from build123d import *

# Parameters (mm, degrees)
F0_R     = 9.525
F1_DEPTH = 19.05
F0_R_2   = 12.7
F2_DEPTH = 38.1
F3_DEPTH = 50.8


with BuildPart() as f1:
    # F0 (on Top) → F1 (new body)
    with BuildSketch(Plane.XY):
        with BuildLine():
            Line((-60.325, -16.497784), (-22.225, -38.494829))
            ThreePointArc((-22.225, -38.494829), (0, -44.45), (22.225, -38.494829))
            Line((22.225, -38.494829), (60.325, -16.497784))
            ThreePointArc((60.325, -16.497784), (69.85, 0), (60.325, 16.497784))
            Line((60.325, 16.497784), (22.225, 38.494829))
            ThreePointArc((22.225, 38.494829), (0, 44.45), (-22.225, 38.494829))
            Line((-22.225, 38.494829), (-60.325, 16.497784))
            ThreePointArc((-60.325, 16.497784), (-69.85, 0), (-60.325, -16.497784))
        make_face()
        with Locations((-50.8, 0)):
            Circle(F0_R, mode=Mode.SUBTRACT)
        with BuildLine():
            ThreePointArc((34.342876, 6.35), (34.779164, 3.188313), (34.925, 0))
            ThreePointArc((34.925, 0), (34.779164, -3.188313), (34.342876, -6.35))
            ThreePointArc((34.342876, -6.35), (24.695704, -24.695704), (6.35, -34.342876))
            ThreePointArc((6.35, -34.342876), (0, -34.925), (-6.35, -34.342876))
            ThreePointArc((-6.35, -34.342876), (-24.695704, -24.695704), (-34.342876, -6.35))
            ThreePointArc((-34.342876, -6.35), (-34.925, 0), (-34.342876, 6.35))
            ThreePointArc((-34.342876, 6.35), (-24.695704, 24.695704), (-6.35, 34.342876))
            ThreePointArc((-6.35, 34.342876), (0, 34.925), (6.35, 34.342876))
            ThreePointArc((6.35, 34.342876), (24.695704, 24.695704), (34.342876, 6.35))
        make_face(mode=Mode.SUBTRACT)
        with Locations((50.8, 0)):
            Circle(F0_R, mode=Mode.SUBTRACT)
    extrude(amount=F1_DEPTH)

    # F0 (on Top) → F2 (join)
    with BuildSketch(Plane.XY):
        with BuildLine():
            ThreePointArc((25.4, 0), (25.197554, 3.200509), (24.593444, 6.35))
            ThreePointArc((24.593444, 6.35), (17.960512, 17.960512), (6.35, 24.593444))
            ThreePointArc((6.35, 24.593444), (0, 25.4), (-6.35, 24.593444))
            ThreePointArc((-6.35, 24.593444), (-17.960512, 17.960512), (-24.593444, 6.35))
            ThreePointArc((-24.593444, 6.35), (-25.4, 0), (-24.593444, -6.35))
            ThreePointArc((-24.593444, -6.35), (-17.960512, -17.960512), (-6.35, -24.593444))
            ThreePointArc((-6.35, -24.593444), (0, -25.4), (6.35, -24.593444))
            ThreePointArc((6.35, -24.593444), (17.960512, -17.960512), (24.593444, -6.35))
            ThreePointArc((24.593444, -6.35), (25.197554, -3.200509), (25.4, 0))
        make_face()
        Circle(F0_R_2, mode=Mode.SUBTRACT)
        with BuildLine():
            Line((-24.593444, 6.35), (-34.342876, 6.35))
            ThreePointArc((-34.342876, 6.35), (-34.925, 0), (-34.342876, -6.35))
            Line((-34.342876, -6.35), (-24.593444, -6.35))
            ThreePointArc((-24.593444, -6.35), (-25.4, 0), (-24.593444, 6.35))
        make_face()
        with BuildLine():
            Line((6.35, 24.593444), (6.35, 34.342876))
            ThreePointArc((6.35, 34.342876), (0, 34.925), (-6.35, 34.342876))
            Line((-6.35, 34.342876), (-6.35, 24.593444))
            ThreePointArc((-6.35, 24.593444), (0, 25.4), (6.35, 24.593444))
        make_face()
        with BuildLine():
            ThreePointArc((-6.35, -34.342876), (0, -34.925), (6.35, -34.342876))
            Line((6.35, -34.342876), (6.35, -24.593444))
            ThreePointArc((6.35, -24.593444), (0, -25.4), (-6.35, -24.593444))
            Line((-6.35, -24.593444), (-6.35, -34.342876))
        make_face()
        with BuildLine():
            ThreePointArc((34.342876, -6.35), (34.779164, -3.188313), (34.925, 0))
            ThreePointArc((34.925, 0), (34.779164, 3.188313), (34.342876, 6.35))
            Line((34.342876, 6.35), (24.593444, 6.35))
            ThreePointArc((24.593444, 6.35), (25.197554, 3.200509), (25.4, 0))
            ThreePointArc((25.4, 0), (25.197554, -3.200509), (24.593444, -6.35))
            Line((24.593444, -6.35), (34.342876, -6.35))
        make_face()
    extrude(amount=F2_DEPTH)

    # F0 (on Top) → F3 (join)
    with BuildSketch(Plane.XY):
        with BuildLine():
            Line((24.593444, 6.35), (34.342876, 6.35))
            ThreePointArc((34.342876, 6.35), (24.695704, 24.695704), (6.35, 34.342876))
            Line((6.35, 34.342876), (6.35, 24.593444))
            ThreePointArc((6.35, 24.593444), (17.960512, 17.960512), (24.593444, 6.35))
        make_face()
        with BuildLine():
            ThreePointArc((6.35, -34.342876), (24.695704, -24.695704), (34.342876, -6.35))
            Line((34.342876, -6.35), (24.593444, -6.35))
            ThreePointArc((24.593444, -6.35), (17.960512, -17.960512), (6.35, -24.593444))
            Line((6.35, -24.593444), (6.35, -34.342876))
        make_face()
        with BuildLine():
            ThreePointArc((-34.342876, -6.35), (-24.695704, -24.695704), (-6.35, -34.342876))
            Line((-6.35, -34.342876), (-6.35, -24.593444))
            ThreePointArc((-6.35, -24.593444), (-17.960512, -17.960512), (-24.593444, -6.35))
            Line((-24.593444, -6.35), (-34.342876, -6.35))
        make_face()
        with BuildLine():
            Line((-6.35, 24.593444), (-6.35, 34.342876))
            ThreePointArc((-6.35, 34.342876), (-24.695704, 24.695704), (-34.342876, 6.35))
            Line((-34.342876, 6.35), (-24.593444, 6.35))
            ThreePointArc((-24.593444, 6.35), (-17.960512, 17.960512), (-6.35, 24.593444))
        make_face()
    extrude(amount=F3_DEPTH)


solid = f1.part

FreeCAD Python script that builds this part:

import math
import FreeCAD as App
import Part
import Sketcher

V = App.Vector
Q = App.Units.Quantity

doc = App.newDocument("Part")
body = doc.addObject("PartDesign::Body", "Body")

# Sketch on XY plane
sketch1 = doc.addObject("Sketcher::SketchObject", "Sketch")
body.addObject(sketch1)
sketch1.AttachmentSupport = (doc.XY_Plane, [""])
sketch1.MapMode = "FlatFace"
sketch1.addGeometry(Part.LineSegment(V(-60.325, -16.497784, 0), V(-22.225, -38.494829, 0)), False)
sketch1.addGeometry(Part.ArcOfCircle(Part.Circle(V(0, -0.000001, 0), V(0, 0, 1), 44.449999), math.radians(-120.000001), math.radians(-59.999999)), False)
sketch1.addGeometry(Part.LineSegment(V(22.225, -38.494829, 0), V(60.325, -16.497784, 0)), False)
sketch1.addGeometry(Part.ArcOfCircle(Part.Circle(V(50.8, 0, 0), V(0, 0, 1), 19.05), math.radians(-60), math.radians(60)), False)
sketch1.addGeometry(Part.LineSegment(V(60.325, 16.497784, 0), V(22.225, 38.494829, 0)), False)
sketch1.addGeometry(Part.ArcOfCircle(Part.Circle(V(0, 0.000001, 0), V(0, 0, 1), 44.449999), math.radians(59.999999), math.radians(120.000001)), False)
sketch1.addGeometry(Part.LineSegment(V(-22.225, 38.494829, 0), V(-60.325, 16.497784, 0)), False)
sketch1.addGeometry(Part.ArcOfCircle(Part.Circle(V(-50.8, 0, 0), V(0, 0, 1), 19.05), math.radians(120), math.radians(240)), False)
sketch1.addGeometry(Part.Circle(V(-50.8, 0, 0), V(0, 0, 1), 9.525), False)
sketch1.addGeometry(Part.Circle(V(50.8, 0, 0), V(0, 0, 1), 9.525), False)
sketch1.addGeometry(Part.ArcOfCircle(Part.Circle(V(-0.000002, -0.000002, 0), V(0, 0, 1), 34.925003), math.radians(10.475685), math.radians(79.524315)), False)
sketch1.addGeometry(Part.ArcOfCircle(Part.Circle(V(-0.000137, -0.000012, 0), V(0, 0, 1), 34.925137), math.radians(0.00002), math.radians(10.47566)), False)
sketch1.addGeometry(Part.ArcOfCircle(Part.Circle(V(-0.000137, 0.000012, 0), V(0, 0, 1), 34.925137), math.radians(-10.47566), math.radians(-0.00002)), False)
sketch1.addGeometry(Part.ArcOfCircle(Part.Circle(V(-0.000002, 0.000002, 0), V(0, 0, 1), 34.925003), math.radians(-79.524315), math.radians(-10.475685)), False)
sketch1.addGeometry(Part.ArcOfCircle(Part.Circle(V(0, 0.000006, 0), V(0, 0, 1), 34.925006), math.radians(-100.47568), math.radians(-79.52432)), False)
sketch1.addGeometry(Part.ArcOfCircle(Part.Circle(V(0.000002, 0.000002, 0), V(0, 0, 1), 34.925003), math.radians(-169.524315), math.radians(-100.475685)), False)
sketch1.addGeometry(Part.ArcOfCircle(Part.Circle(V(0.000006, 0, 0), V(0, 0, 1), 34.925006), math.radians(169.52432), math.radians(190.47568)), False)
sketch1.addGeometry(Part.ArcOfCircle(Part.Circle(V(0.000002, -0.000002, 0), V(0, 0, 1), 34.925003), math.radians(100.475685), math.radians(169.524315)), False)
sketch1.addGeometry(Part.ArcOfCircle(Part.Circle(V(0, -0.000006, 0), V(0, 0, 1), 34.925006), math.radians(79.52432), math.radians(100.47568)), False)
sketch1.addConstraint(Sketcher.Constraint("Coincident", 0, 2, 1, 1))
sketch1.addConstraint(Sketcher.Constraint("Coincident", 1, 2, 2, 1))
sketch1.addConstraint(Sketcher.Constraint("Coincident", 2, 2, 3, 1))
sketch1.addConstraint(Sketcher.Constraint("Coincident", 3, 2, 4, 1))
sketch1.addConstraint(Sketcher.Constraint("Coincident", 4, 2, 5, 1))
sketch1.addConstraint(Sketcher.Constraint("Coincident", 5, 2, 6, 1))
sketch1.addConstraint(Sketcher.Constraint("Coincident", 6, 2, 7, 1))
sketch1.addConstraint(Sketcher.Constraint("Coincident", 7, 2, 0, 1))
sketch1.addConstraint(Sketcher.Constraint("Coincident", 10, 1, 11, 2))
sketch1.addConstraint(Sketcher.Constraint("Coincident", 11, 1, 12, 2))
sketch1.addConstraint(Sketcher.Constraint("Coincident", 12, 1, 13, 2))
sketch1.addConstraint(Sketcher.Constraint("Coincident", 13, 1, 14, 2))
sketch1.addConstraint(Sketcher.Constraint("Coincident", 14, 1, 15, 2))
sketch1.addConstraint(Sketcher.Constraint("Coincident", 15, 1, 16, 2))
sketch1.addConstraint(Sketcher.Constraint("Coincident", 16, 1, 17, 2))
sketch1.addConstraint(Sketcher.Constraint("Coincident", 17, 1, 18, 2))
sketch1.addConstraint(Sketcher.Constraint("Coincident", 18, 1, 10, 2))
sketch1.addConstraint(Sketcher.Constraint("Coincident", 1, 3, -1, 1))
sketch1.addConstraint(Sketcher.Constraint("Coincident", 5, 3, -1, 1))
sketch1.addConstraint(Sketcher.Constraint("Coincident", 10, 3, -1, 1))
sketch1.addConstraint(Sketcher.Constraint("Coincident", 13, 3, -1, 1))
sketch1.addConstraint(Sketcher.Constraint("Coincident", 14, 3, -1, 1))
sketch1.addConstraint(Sketcher.Constraint("Coincident", 15, 3, -1, 1))
sketch1.addConstraint(Sketcher.Constraint("Coincident", 16, 3, -1, 1))
sketch1.addConstraint(Sketcher.Constraint("Coincident", 17, 3, -1, 1))
sketch1.addConstraint(Sketcher.Constraint("Coincident", 18, 3, -1, 1))
sketch1.addConstraint(Sketcher.Constraint("Coincident", 8, 3, 7, 3))
sketch1.addConstraint(Sketcher.Constraint("Coincident", 9, 3, 3, 3))
sketch1.addConstraint(Sketcher.Constraint("PointOnObject", 3, 3, -1))
sketch1.addConstraint(Sketcher.Constraint("PointOnObject", 7, 3, -1))
sketch1.addConstraint(Sketcher.Constraint("PointOnObject", 11, 1, -1))
sketch1.addConstraint(Sketcher.Constraint("Diameter", 8, Q("0.75 in")))
sketch1.addConstraint(Sketcher.Constraint("Diameter", 9, Q("0.75 in")))
sketch1.addConstraint(Sketcher.Constraint("Radius", 1, Q("1.7499999 in")))
sketch1.addConstraint(Sketcher.Constraint("Radius", 3, Q("0.75 in")))
sketch1.addConstraint(Sketcher.Constraint("Radius", 5, Q("1.7499999 in")))
sketch1.addConstraint(Sketcher.Constraint("Radius", 7, Q("0.75 in")))
sketch1.addConstraint(Sketcher.Constraint("DistanceX", -1, 1, 3, 3, Q("2 in")))
sketch1.addConstraint(Sketcher.Constraint("DistanceX", 7, 3, -1, 1, Q("2 in")))
sketch1.addConstraint(Sketcher.Constraint("Radius", 10, Q("1.3750001 in")))
sketch1.addConstraint(Sketcher.Constraint("DistanceX", 11, 1, 3, 2, Q("1 in")))
sketch1.addConstraint(Sketcher.Constraint("DistanceX", 11, 1, 2, 2, Q("1 in")))
sketch1.addConstraint(Sketcher.Constraint("DistanceX", 1, 2, 2, 2, Q("1.5 in")))
sketch1.addConstraint(Sketcher.Constraint("DistanceX", 4, 2, 3, 2, Q("1.5 in")))
sketch1.addConstraint(Sketcher.Constraint("DistanceX", 6, 2, 5, 2, Q("1.5 in")))
sketch1.addConstraint(Sketcher.Constraint("DistanceX", 7, 2, 0, 2, Q("1.5 in")))
sketch1.addConstraint(Sketcher.Constraint("DistanceY", 12, 1, 10, 1, Q("0.5 in")))
sketch1.addConstraint(Sketcher.Constraint("DistanceX", 14, 1, 13, 1, Q("0.5 in")))
sketch1.addConstraint(Sketcher.Constraint("DistanceY", 15, 1, 16, 1, Q("0.5 in")))
sketch1.addConstraint(Sketcher.Constraint("DistanceX", 17, 1, 18, 1, Q("0.5 in")))
sketch1.addConstraint(Sketcher.Constraint("DistanceY", -1, 1, 10, 1, Q("0.25 in")))
sketch1.addConstraint(Sketcher.Constraint("DistanceX", -1, 1, 13, 1, Q("0.25 in")))
sketch1.addConstraint(Sketcher.Constraint("DistanceY", 15, 1, -1, 1, Q("0.25 in")))
sketch1.addConstraint(Sketcher.Constraint("DistanceX", 17, 1, -1, 1, Q("0.25 in")))
sketch1.addConstraint(Sketcher.Constraint("DistanceX", 0, 2, -1, 1, Q("0.875 in")))
sketch1.addConstraint(Sketcher.Constraint("DistanceX", -1, 1, 1, 2, Q("0.875 in")))
sketch1.addConstraint(Sketcher.Constraint("DistanceX", 5, 2, -1, 1, Q("0.875 in")))
sketch1.addConstraint(Sketcher.Constraint("Radius", 11, 34.925137))
sketch1.addConstraint(Sketcher.Constraint("Radius", 12, 34.925137))
pad1 = doc.addObject("PartDesign::Pad", "Pad")
body.addObject(pad1)
pad1.Profile = sketch1
pad1.Length = Q("0.75 in")

# Sketch on XY plane
sketch2 = doc.addObject("Sketcher::SketchObject", "Sketch001")
body.addObject(sketch2)
sketch2.AttachmentSupport = (doc.XY_Plane, [""])
sketch2.MapMode = "FlatFace"
sketch2.addGeometry(Part.ArcOfCircle(Part.Circle(V(-0.000001, -0.000001, 0), V(0, 0, 1), 25.4), math.radians(14.477513), math.radians(75.522487)), False)
sketch2.addGeometry(Part.LineSegment(V(6.35, 24.593444, 0), V(6.35, 34.342876, 0)), False)
sketch2.addGeometry(Part.ArcOfCircle(Part.Circle(V(0, -0.000006, 0), V(0, 0, 1), 34.925006), math.radians(79.52432), math.radians(100.47568)), False)
sketch2.addGeometry(Part.LineSegment(V(-6.35, 34.342876, 0), V(-6.35, 24.593444, 0)), False)
sketch2.addGeometry(Part.ArcOfCircle(Part.Circle(V(0.000001, -0.000001, 0), V(0, 0, 1), 25.4), math.radians(104.477513), math.radians(165.522487)), False)
sketch2.addGeometry(Part.LineSegment(V(-24.593444, 6.35, 0), V(-34.342876, 6.35, 0)), False)
sketch2.addGeometry(Part.ArcOfCircle(Part.Circle(V(0.000006, 0, 0), V(0, 0, 1), 34.925006), math.radians(169.52432), math.radians(190.47568)), False)
sketch2.addGeometry(Part.LineSegment(V(-34.342876, -6.35, 0), V(-24.593444, -6.35, 0)), False)
sketch2.addGeometry(Part.ArcOfCircle(Part.Circle(V(0.000001, 0.000001, 0), V(0, 0, 1), 25.4), math.radians(-165.522487), math.radians(-104.477513)), False)
sketch2.addGeometry(Part.LineSegment(V(-6.35, -24.593444, 0), V(-6.35, -34.342876, 0)), False)
sketch2.addGeometry(Part.ArcOfCircle(Part.Circle(V(0, 0.000006, 0), V(0, 0, 1), 34.925006), math.radians(-100.47568), math.radians(-79.52432)), False)
sketch2.addGeometry(Part.LineSegment(V(6.35, -34.342876, 0), V(6.35, -24.593444, 0)), False)
sketch2.addGeometry(Part.ArcOfCircle(Part.Circle(V(-0.000001, 0.000001, 0), V(0, 0, 1), 25.4), math.radians(-75.522487), math.radians(-14.477513)), False)
sketch2.addGeometry(Part.LineSegment(V(24.593444, -6.35, 0), V(34.342876, -6.35, 0)), False)
sketch2.addGeometry(Part.ArcOfCircle(Part.Circle(V(-0.000137, 0.000012, 0), V(0, 0, 1), 34.925137), math.radians(-10.47566), math.radians(-0.00002)), False)
sketch2.addGeometry(Part.ArcOfCircle(Part.Circle(V(-0.000137, -0.000012, 0), V(0, 0, 1), 34.925137), math.radians(0.00002), math.radians(10.47566)), False)
sketch2.addGeometry(Part.LineSegment(V(34.342876, 6.35, 0), V(24.593444, 6.35, 0)), False)
sketch2.addGeometry(Part.Circle(V(0, 0, 0), V(0, 0, 1), 12.7), False)
sketch2.addConstraint(Sketcher.Constraint("Coincident", 0, 2, 1, 1))
sketch2.addConstraint(Sketcher.Constraint("Coincident", 1, 2, 2, 1))
sketch2.addConstraint(Sketcher.Constraint("Coincident", 2, 2, 3, 1))
sketch2.addConstraint(Sketcher.Constraint("Coincident", 3, 2, 4, 1))
sketch2.addConstraint(Sketcher.Constraint("Coincident", 4, 2, 5, 1))
sketch2.addConstraint(Sketcher.Constraint("Coincident", 5, 2, 6, 1))
sketch2.addConstraint(Sketcher.Constraint("Coincident", 6, 2, 7, 1))
sketch2.addConstraint(Sketcher.Constraint("Coincident", 7, 2, 8, 1))
sketch2.addConstraint(Sketcher.Constraint("Coincident", 8, 2, 9, 1))
sketch2.addConstraint(Sketcher.Constraint("Coincident", 9, 2, 10, 1))
sketch2.addConstraint(Sketcher.Constraint("Coincident", 10, 2, 11, 1))
sketch2.addConstraint(Sketcher.Constraint("Coincident", 11, 2, 12, 1))
sketch2.addConstraint(Sketcher.Constraint("Coincident", 12, 2, 13, 1))
sketch2.addConstraint(Sketcher.Constraint("Coincident", 13, 2, 14, 1))
sketch2.addConstraint(Sketcher.Constraint("Coincident", 14, 2, 15, 1))
sketch2.addConstraint(Sketcher.Constraint("Coincident", 15, 2, 16, 1))
sketch2.addConstraint(Sketcher.Constraint("Coincident", 16, 2, 0, 1))
sketch2.addConstraint(Sketcher.Constraint("Vertical", 1))
sketch2.addConstraint(Sketcher.Constraint("Vertical", 3))
sketch2.addConstraint(Sketcher.Constraint("Horizontal", 5))
sketch2.addConstraint(Sketcher.Constraint("Horizontal", 7))
sketch2.addConstraint(Sketcher.Constraint("Vertical", 9))
sketch2.addConstraint(Sketcher.Constraint("Vertical", 11))
sketch2.addConstraint(Sketcher.Constraint("Horizontal", 13))
sketch2.addConstraint(Sketcher.Constraint("Horizontal", 16))
sketch2.addConstraint(Sketcher.Constraint("Coincident", 0, 3, -1, 1))
sketch2.addConstraint(Sketcher.Constraint("Coincident", 2, 3, -1, 1))
sketch2.addConstraint(Sketcher.Constraint("Coincident", 4, 3, -1, 1))
sketch2.addConstraint(Sketcher.Constraint("Coincident", 6, 3, -1, 1))
sketch2.addConstraint(Sketcher.Constraint("Coincident", 8, 3, -1, 1))
sketch2.addConstraint(Sketcher.Constraint("Coincident", 10, 3, -1, 1))
sketch2.addConstraint(Sketcher.Constraint("Coincident", 12, 3, -1, 1))
sketch2.addConstraint(Sketcher.Constraint("Coincident", 17, 3, -1, 1))
sketch2.addConstraint(Sketcher.Constraint("PointOnObject", 14, 2, -1))
sketch2.addConstraint(Sketcher.Constraint("Diameter", 17, Q("1 in")))
sketch2.addConstraint(Sketcher.Constraint("Radius", 0, Q("1 in")))
sketch2.addConstraint(Sketcher.Constraint("Radius", 4, Q("1 in")))
sketch2.addConstraint(Sketcher.Constraint("Radius", 8, Q("1 in")))
sketch2.addConstraint(Sketcher.Constraint("Radius", 12, Q("1 in")))
sketch2.addConstraint(Sketcher.Constraint("DistanceX", 2, 2, 1, 2, Q("0.5 in")))
sketch2.addConstraint(Sketcher.Constraint("DistanceY", 6, 2, 5, 2, Q("0.5 in")))
sketch2.addConstraint(Sketcher.Constraint("DistanceX", 9, 2, 10, 2, Q("0.5 in")))
sketch2.addConstraint(Sketcher.Constraint("DistanceY", 13, 2, 15, 2, Q("0.5 in")))
sketch2.addConstraint(Sketcher.Constraint("DistanceX", -1, 1, 0, 2, Q("0.25 in")))
sketch2.addConstraint(Sketcher.Constraint("DistanceY", -1, 1, 4, 2, Q("0.25 in")))
sketch2.addConstraint(Sketcher.Constraint("DistanceX", 8, 2, -1, 1, Q("0.25 in")))
sketch2.addConstraint(Sketcher.Constraint("DistanceY", 12, 2, -1, 1, Q("0.25 in")))
sketch2.addConstraint(Sketcher.Constraint("DistanceX", -1, 1, 14, 2, Q("1.375 in")))
sketch2.addConstraint(Sketcher.Constraint("Radius", 2, 34.925006))
sketch2.addConstraint(Sketcher.Constraint("Radius", 6, 34.925006))
sketch2.addConstraint(Sketcher.Constraint("Radius", 10, 34.925006))
sketch2.addConstraint(Sketcher.Constraint("Radius", 14, 34.925137))
sketch2.addConstraint(Sketcher.Constraint("Radius", 15, 34.925137))
sketch2.addConstraint(Sketcher.Constraint("DistanceX", 13, 1, 13, 2, 9.749432))
sketch2.addConstraint(Sketcher.Constraint("DistanceX", 16, 2, 16, 1, 9.749432))
pad2 = doc.addObject("PartDesign::Pad", "Pad001")
body.addObject(pad2)
pad2.Profile = sketch2
pad2.Length = Q("1.5 in")

# Sketch on XY plane
sketch3 = doc.addObject("Sketcher::SketchObject", "Sketch002")
body.addObject(sketch3)
sketch3.AttachmentSupport = (doc.XY_Plane, [""])
sketch3.MapMode = "FlatFace"
sketch3.addGeometry(Part.LineSegment(V(25, 6, 0), V(34, 6, 0)), False)
sketch3.addGeometry(Part.ArcOfCircle(Part.Circle(V(0, 0, 0), V(0, 0, 1), 35), math.radians(10), math.radians(80)), False)
sketch3.addGeometry(Part.LineSegment(V(6, 34, 0), V(6, 25, 0)), False)
sketch3.addGeometry(Part.ArcOfCircle(Part.Circle(V(0, 0, 0), V(0, 0, 1), 25), math.radians(14), math.radians(76)), False)
sketch3.addGeometry(Part.ArcOfCircle(Part.Circle(V(0, 0, 0), V(0, 0, 1), 35), math.radians(-80), math.radians(-10)), False)
sketch3.addGeometry(Part.LineSegment(V(34, -6, 0), V(25, -6, 0)), False)
sketch3.addGeometry(Part.ArcOfCircle(Part.Circle(V(0, 0, 0), V(0, 0, 1), 25), math.radians(-76), math.radians(-14)), False)
sketch3.addGeometry(Part.LineSegment(V(6, -25, 0), V(6, -34, 0)), False)
sketch3.addGeometry(Part.ArcOfCircle(Part.Circle(V(0, 0, 0), V(0, 0, 1), 35), math.radians(-170), math.radians(-100)), False)
sketch3.addGeometry(Part.LineSegment(V(-6, -34, 0), V(-6, -25, 0)), False)
sketch3.addGeometry(Part.ArcOfCircle(Part.Circle(V(0, 0, 0), V(0, 0, 1), 25), math.radians(-166), math.radians(-104)), False)
sketch3.addGeometry(Part.LineSegment(V(-25, -6, 0), V(-34, -6, 0)), False)
sketch3.addGeometry(Part.LineSegment(V(-6, 25, 0), V(-6, 34, 0)), False)
sketch3.addGeometry(Part.ArcOfCircle(Part.Circle(V(0, 0, 0), V(0, 0, 1), 35), math.radians(100), math.radians(170)), False)
sketch3.addGeometry(Part.LineSegment(V(-34, 6, 0), V(-25, 6, 0)), False)
sketch3.addGeometry(Part.ArcOfCircle(Part.Circle(V(0, 0, 0), V(0, 0, 1), 25), math.radians(104), math.radians(166)), False)
sketch3.addConstraint(Sketcher.Constraint("Coincident", 0, 2, 1, 1))
sketch3.addConstraint(Sketcher.Constraint("Coincident", 1, 2, 2, 1))
sketch3.addConstraint(Sketcher.Constraint("Coincident", 2, 2, 3, 2))
sketch3.addConstraint(Sketcher.Constraint("Coincident", 3, 1, 0, 1))
sketch3.addConstraint(Sketcher.Constraint("Coincident", 4, 2, 5, 1))
sketch3.addConstraint(Sketcher.Constraint("Coincident", 5, 2, 6, 2))
sketch3.addConstraint(Sketcher.Constraint("Coincident", 6, 1, 7, 1))
sketch3.addConstraint(Sketcher.Constraint("Coincident", 7, 2, 4, 1))
sketch3.addConstraint(Sketcher.Constraint("Coincident", 8, 2, 9, 1))
sketch3.addConstraint(Sketcher.Constraint("Coincident", 9, 2, 10, 2))
sketch3.addConstraint(Sketcher.Constraint("Coincident", 10, 1, 11, 1))
sketch3.addConstraint(Sketcher.Constraint("Coincident", 11, 2, 8, 1))
sketch3.addConstraint(Sketcher.Constraint("Coincident", 12, 2, 13, 1))
sketch3.addConstraint(Sketcher.Constraint("Coincident", 13, 2, 14, 1))
sketch3.addConstraint(Sketcher.Constraint("Coincident", 14, 2, 15, 2))
sketch3.addConstraint(Sketcher.Constraint("Coincident", 15, 1, 12, 1))
sketch3.addConstraint(Sketcher.Constraint("Horizontal", 0))
sketch3.addConstraint(Sketcher.Constraint("Vertical", 2))
sketch3.addConstraint(Sketcher.Constraint("Horizontal", 5))
sketch3.addConstraint(Sketcher.Constraint("Vertical", 7))
sketch3.addConstraint(Sketcher.Constraint("Vertical", 9))
sketch3.addConstraint(Sketcher.Constraint("Horizontal", 11))
sketch3.addConstraint(Sketcher.Constraint("Vertical", 12))
sketch3.addConstraint(Sketcher.Constraint("Horizontal", 14))
sketch3.addConstraint(Sketcher.Constraint("Coincident", 1, 3, -1, 1))
sketch3.addConstraint(Sketcher.Constraint("Coincident", 3, 3, -1, 1))
sketch3.addConstraint(Sketcher.Constraint("Coincident", 4, 3, -1, 1))
sketch3.addConstraint(Sketcher.Constraint("Coincident", 6, 3, -1, 1))
sketch3.addConstraint(Sketcher.Constraint("Coincident", 8, 3, -1, 1))
sketch3.addConstraint(Sketcher.Constraint("Coincident", 10, 3, -1, 1))
sketch3.addConstraint(Sketcher.Constraint("Coincident", 13, 3, -1, 1))
sketch3.addConstraint(Sketcher.Constraint("Coincident", 15, 3, -1, 1))
sketch3.addConstraint(Sketcher.Constraint("Equal", 1, 4))
sketch3.addConstraint(Sketcher.Constraint("Equal", 3, 6))
sketch3.addConstraint(Sketcher.Constraint("Equal", 4, 8))
sketch3.addConstraint(Sketcher.Constraint("Equal", 6, 10))
sketch3.addConstraint(Sketcher.Constraint("Equal", 8, 13))
sketch3.addConstraint(Sketcher.Constraint("Equal", 10, 15))
sketch3.addConstraint(Sketcher.Constraint("Horizontal", 7, 2, 8, 2))
sketch3.addConstraint(Sketcher.Constraint("Horizontal", 5, 2, 10, 1))
sketch3.addConstraint(Sketcher.Constraint("Horizontal", 1, 2, 12, 2))
sketch3.addConstraint(Sketcher.Constraint("Horizontal", 3, 1, 13, 2))
sketch3.addConstraint(Sketcher.Constraint("Vertical", 0, 2, 4, 2))
sketch3.addConstraint(Sketcher.Constraint("Vertical", 2, 2, 6, 1))
sketch3.addConstraint(Sketcher.Constraint("Equal", 14, 2))
sketch3.addConstraint(Sketcher.Constraint("Radius", 3, Q("1 in")))
sketch3.addConstraint(Sketcher.Constraint("Radius", 1, Q("1.3750001 in")))
sketch3.addConstraint(Sketcher.Constraint("DistanceY", 4, 2, 0, 2, Q("0.5 in")))
pad3 = doc.addObject("PartDesign::Pad", "Pad002")
body.addObject(pad3)
pad3.Profile = sketch3
pad3.Length = Q("2 in")

doc.recompute()
